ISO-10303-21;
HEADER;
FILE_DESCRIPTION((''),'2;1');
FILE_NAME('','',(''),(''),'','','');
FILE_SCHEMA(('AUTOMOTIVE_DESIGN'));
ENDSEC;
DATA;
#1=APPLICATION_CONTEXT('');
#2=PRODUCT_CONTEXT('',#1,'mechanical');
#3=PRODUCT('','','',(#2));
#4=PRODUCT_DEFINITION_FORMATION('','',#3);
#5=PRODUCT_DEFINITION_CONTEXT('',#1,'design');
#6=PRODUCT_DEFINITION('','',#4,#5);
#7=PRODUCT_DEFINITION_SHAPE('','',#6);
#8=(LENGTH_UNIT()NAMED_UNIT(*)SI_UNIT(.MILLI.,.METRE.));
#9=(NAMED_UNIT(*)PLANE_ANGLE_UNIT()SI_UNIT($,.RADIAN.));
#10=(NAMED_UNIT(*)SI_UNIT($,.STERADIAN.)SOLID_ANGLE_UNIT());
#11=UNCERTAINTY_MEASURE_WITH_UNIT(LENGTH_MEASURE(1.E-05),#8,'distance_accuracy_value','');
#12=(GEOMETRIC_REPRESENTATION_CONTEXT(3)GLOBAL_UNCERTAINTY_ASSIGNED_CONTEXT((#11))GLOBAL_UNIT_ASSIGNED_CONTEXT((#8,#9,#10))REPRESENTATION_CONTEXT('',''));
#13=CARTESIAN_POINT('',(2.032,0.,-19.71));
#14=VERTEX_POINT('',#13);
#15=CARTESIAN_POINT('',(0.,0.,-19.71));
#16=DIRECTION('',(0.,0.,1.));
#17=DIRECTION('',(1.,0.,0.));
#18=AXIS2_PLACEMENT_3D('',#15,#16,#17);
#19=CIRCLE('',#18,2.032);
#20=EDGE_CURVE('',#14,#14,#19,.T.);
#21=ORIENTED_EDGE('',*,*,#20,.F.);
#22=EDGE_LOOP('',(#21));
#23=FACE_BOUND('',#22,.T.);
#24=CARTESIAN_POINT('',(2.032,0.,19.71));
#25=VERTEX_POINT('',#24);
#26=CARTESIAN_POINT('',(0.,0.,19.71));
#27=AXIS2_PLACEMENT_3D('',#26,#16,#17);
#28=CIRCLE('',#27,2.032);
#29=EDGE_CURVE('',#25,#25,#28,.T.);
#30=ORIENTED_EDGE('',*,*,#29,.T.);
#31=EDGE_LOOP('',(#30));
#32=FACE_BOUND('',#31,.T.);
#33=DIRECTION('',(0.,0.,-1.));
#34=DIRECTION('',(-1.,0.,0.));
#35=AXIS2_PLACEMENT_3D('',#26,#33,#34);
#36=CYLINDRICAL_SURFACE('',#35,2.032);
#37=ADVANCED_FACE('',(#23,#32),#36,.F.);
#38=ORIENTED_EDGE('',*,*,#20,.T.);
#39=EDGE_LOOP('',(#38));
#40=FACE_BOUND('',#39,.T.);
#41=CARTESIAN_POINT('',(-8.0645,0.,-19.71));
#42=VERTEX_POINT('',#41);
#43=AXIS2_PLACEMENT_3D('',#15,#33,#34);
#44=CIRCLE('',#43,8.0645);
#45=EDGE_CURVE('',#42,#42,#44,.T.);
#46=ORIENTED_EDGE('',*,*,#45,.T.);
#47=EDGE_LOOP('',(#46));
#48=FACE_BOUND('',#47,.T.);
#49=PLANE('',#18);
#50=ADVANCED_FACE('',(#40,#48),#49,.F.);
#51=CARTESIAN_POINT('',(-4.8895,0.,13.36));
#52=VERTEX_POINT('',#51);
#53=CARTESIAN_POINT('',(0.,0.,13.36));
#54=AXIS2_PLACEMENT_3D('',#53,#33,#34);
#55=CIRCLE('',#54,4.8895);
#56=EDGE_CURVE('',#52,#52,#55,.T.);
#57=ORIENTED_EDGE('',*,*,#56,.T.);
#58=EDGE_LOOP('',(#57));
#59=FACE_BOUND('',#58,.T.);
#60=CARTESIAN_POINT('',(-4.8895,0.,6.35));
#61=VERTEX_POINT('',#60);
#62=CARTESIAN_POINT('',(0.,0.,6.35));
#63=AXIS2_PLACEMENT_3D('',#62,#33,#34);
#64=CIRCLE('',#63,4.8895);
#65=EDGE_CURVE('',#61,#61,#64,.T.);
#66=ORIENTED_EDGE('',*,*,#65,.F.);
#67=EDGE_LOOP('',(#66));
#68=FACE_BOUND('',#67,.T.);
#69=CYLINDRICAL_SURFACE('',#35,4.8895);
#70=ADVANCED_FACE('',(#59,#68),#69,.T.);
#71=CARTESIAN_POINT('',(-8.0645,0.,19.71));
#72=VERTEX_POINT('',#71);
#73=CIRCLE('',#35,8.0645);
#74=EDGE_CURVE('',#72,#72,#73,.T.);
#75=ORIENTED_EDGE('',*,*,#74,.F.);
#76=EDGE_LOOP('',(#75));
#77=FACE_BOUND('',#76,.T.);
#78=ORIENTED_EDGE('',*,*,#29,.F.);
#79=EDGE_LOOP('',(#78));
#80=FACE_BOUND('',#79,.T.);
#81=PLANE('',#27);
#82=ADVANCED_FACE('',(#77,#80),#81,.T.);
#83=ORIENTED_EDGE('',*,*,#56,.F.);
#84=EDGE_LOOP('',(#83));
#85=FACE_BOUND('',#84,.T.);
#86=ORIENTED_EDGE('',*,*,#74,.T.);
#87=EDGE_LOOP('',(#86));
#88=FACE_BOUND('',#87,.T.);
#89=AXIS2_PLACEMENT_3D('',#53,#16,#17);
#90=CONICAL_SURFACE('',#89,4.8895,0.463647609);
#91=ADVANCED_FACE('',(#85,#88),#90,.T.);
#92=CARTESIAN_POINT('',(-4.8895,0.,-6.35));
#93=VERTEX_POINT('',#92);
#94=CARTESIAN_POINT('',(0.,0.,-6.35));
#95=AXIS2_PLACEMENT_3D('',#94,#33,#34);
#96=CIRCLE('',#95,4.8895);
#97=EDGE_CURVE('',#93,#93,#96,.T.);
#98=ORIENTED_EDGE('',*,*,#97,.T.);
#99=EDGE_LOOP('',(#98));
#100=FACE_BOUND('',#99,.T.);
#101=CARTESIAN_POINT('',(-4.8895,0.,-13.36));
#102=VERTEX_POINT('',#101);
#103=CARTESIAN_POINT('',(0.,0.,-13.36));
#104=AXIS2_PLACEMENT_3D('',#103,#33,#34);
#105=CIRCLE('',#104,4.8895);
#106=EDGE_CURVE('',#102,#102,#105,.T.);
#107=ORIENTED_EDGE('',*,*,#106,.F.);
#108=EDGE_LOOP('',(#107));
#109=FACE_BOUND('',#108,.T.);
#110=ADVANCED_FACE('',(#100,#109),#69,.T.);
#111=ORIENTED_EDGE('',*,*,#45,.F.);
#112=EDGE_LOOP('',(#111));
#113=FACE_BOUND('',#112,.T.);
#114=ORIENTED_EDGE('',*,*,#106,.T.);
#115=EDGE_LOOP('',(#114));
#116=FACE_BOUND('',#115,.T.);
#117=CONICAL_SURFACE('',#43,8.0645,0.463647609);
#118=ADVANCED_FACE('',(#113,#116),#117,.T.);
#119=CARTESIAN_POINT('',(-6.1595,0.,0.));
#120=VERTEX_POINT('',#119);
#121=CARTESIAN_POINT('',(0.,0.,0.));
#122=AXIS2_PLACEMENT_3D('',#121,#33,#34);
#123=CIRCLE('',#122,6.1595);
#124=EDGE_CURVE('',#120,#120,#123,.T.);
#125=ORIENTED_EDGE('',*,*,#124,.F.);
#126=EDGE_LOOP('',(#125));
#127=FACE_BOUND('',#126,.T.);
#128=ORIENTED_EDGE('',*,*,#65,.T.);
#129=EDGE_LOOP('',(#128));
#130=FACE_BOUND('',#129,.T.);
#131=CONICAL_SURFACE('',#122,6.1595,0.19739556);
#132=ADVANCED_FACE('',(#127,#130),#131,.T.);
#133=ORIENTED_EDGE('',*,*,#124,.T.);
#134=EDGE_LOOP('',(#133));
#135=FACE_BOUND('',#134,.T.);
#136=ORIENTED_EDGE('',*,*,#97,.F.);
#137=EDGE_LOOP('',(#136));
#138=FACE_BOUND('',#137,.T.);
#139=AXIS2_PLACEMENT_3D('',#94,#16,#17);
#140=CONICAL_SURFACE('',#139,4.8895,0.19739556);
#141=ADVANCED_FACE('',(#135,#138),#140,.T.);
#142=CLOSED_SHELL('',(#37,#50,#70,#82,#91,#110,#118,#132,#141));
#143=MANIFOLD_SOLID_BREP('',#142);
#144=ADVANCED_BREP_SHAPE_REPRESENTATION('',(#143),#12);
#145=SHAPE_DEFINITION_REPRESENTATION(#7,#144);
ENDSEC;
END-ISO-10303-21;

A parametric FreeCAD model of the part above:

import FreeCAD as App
import Part
import Sketcher

V = App.Vector
Q = App.Units.Quantity


def add_polygon(sketch, points):
    """Adds a closed chain of lines whose ends are joined by coincident constraints."""
    first, n = sketch.GeometryCount, len(points)
    for a, b in zip(points, points[1:] + points[:1]):
        sketch.addGeometry(Part.LineSegment(App.Vector(*a, 0), App.Vector(*b, 0)), False)
    for i in range(n):
        sketch.addConstraint(Sketcher.Constraint("Coincident", first + i, 2, first + (i + 1) % n, 1))

doc = App.newDocument("Part")
body = doc.addObject("PartDesign::Body", "Body")

# Sketch on XY plane
sketch1 = body.newObject("Sketcher::SketchObject", "Sketch")
sketch1.AttachmentSupport = (doc.getObject("XY_Plane"), [""])
sketch1.MapMode = "FlatFace"
sketch1.addGeometry([
    Part.Circle(V(0, 0, 0), V(0, 0, 1), 4.9),
    Part.Circle(V(0, 0, 0), V(0, 0, 1), 2),
], False)
sketch1.addConstraint([
    Sketcher.Constraint("Coincident", 0, 3, -1, 1),
    Sketcher.Constraint("Coincident", 1, 3, -1, 1),
    Sketcher.Constraint("Diameter", 1, Q("0.16 in")),
    Sketcher.Constraint("Diameter", 0, Q("0.385 in")),
])
pad1 = body.newObject("PartDesign::Pad", "Pad")
pad1.Profile = sketch1
pad1.Length = 39.42
pad1.Midplane = True

# Sketch on YZ plane
sketch2 = body.newObject("Sketcher::SketchObject", "Sketch001")
sketch2.AttachmentSupport = (doc.getObject("YZ_Plane"), [""])
sketch2.MapMode = "FlatFace"
add_polygon(sketch2, [(4.9, 13.4), (8.1, 19.7), (4.9, 19.7)])  # lines 0-2
add_polygon(sketch2, [(6.2, 0), (4.9, 6.3), (4.9, -6.3)])  # lines 3-5
add_polygon(sketch2, [(4.9, -19.7), (8.1, -19.7), (4.9, -13.4)])  # lines 6-8
sketch2.addConstraint([
    Sketcher.Constraint("Horizontal", 1),
    Sketcher.Constraint("Vertical", 2),
    Sketcher.Constraint("Vertical", 4),
    Sketcher.Constraint("Horizontal", 6),
    Sketcher.Constraint("Vertical", 8),
    Sketcher.Constraint("Symmetric", 0, 2, 6, 2, -1),
    Sketcher.Constraint("Symmetric", 2, 2, 7, 2, -1),
    Sketcher.Constraint("PointOnObject", 5, 2, -1),
    Sketcher.Constraint("Vertical", 2, 2, 3, 2),
    Sketcher.Constraint("Equal", 3, 5),
    Sketcher.Constraint("DistanceY", 4, 2, 4, 1, Q("0.5 in")),
    Sketcher.Constraint("DistanceY", 2, 2, 2, 1, Q("0.25 in")),
    Sketcher.Constraint("DistanceX", 1, 2, 1, 1, Q("0.125 in")),
    Sketcher.Constraint("DistanceX", 3, 2, 5, 2, Q("0.05 in")),
    Sketcher.Constraint("DistanceX", -1, 1, 0, 2, Q("0.3175 in")),
    Sketcher.Constraint("DistanceY", -1, 1, 0, 2, Q("19.71 mm")),
])
revolution = body.newObject("PartDesign::Revolution", "Revolution")
revolution.Profile = sketch2
revolution.ReferenceAxis = (sketch2, ["V_Axis"])
revolution.Angle = 360

doc.recompute()
